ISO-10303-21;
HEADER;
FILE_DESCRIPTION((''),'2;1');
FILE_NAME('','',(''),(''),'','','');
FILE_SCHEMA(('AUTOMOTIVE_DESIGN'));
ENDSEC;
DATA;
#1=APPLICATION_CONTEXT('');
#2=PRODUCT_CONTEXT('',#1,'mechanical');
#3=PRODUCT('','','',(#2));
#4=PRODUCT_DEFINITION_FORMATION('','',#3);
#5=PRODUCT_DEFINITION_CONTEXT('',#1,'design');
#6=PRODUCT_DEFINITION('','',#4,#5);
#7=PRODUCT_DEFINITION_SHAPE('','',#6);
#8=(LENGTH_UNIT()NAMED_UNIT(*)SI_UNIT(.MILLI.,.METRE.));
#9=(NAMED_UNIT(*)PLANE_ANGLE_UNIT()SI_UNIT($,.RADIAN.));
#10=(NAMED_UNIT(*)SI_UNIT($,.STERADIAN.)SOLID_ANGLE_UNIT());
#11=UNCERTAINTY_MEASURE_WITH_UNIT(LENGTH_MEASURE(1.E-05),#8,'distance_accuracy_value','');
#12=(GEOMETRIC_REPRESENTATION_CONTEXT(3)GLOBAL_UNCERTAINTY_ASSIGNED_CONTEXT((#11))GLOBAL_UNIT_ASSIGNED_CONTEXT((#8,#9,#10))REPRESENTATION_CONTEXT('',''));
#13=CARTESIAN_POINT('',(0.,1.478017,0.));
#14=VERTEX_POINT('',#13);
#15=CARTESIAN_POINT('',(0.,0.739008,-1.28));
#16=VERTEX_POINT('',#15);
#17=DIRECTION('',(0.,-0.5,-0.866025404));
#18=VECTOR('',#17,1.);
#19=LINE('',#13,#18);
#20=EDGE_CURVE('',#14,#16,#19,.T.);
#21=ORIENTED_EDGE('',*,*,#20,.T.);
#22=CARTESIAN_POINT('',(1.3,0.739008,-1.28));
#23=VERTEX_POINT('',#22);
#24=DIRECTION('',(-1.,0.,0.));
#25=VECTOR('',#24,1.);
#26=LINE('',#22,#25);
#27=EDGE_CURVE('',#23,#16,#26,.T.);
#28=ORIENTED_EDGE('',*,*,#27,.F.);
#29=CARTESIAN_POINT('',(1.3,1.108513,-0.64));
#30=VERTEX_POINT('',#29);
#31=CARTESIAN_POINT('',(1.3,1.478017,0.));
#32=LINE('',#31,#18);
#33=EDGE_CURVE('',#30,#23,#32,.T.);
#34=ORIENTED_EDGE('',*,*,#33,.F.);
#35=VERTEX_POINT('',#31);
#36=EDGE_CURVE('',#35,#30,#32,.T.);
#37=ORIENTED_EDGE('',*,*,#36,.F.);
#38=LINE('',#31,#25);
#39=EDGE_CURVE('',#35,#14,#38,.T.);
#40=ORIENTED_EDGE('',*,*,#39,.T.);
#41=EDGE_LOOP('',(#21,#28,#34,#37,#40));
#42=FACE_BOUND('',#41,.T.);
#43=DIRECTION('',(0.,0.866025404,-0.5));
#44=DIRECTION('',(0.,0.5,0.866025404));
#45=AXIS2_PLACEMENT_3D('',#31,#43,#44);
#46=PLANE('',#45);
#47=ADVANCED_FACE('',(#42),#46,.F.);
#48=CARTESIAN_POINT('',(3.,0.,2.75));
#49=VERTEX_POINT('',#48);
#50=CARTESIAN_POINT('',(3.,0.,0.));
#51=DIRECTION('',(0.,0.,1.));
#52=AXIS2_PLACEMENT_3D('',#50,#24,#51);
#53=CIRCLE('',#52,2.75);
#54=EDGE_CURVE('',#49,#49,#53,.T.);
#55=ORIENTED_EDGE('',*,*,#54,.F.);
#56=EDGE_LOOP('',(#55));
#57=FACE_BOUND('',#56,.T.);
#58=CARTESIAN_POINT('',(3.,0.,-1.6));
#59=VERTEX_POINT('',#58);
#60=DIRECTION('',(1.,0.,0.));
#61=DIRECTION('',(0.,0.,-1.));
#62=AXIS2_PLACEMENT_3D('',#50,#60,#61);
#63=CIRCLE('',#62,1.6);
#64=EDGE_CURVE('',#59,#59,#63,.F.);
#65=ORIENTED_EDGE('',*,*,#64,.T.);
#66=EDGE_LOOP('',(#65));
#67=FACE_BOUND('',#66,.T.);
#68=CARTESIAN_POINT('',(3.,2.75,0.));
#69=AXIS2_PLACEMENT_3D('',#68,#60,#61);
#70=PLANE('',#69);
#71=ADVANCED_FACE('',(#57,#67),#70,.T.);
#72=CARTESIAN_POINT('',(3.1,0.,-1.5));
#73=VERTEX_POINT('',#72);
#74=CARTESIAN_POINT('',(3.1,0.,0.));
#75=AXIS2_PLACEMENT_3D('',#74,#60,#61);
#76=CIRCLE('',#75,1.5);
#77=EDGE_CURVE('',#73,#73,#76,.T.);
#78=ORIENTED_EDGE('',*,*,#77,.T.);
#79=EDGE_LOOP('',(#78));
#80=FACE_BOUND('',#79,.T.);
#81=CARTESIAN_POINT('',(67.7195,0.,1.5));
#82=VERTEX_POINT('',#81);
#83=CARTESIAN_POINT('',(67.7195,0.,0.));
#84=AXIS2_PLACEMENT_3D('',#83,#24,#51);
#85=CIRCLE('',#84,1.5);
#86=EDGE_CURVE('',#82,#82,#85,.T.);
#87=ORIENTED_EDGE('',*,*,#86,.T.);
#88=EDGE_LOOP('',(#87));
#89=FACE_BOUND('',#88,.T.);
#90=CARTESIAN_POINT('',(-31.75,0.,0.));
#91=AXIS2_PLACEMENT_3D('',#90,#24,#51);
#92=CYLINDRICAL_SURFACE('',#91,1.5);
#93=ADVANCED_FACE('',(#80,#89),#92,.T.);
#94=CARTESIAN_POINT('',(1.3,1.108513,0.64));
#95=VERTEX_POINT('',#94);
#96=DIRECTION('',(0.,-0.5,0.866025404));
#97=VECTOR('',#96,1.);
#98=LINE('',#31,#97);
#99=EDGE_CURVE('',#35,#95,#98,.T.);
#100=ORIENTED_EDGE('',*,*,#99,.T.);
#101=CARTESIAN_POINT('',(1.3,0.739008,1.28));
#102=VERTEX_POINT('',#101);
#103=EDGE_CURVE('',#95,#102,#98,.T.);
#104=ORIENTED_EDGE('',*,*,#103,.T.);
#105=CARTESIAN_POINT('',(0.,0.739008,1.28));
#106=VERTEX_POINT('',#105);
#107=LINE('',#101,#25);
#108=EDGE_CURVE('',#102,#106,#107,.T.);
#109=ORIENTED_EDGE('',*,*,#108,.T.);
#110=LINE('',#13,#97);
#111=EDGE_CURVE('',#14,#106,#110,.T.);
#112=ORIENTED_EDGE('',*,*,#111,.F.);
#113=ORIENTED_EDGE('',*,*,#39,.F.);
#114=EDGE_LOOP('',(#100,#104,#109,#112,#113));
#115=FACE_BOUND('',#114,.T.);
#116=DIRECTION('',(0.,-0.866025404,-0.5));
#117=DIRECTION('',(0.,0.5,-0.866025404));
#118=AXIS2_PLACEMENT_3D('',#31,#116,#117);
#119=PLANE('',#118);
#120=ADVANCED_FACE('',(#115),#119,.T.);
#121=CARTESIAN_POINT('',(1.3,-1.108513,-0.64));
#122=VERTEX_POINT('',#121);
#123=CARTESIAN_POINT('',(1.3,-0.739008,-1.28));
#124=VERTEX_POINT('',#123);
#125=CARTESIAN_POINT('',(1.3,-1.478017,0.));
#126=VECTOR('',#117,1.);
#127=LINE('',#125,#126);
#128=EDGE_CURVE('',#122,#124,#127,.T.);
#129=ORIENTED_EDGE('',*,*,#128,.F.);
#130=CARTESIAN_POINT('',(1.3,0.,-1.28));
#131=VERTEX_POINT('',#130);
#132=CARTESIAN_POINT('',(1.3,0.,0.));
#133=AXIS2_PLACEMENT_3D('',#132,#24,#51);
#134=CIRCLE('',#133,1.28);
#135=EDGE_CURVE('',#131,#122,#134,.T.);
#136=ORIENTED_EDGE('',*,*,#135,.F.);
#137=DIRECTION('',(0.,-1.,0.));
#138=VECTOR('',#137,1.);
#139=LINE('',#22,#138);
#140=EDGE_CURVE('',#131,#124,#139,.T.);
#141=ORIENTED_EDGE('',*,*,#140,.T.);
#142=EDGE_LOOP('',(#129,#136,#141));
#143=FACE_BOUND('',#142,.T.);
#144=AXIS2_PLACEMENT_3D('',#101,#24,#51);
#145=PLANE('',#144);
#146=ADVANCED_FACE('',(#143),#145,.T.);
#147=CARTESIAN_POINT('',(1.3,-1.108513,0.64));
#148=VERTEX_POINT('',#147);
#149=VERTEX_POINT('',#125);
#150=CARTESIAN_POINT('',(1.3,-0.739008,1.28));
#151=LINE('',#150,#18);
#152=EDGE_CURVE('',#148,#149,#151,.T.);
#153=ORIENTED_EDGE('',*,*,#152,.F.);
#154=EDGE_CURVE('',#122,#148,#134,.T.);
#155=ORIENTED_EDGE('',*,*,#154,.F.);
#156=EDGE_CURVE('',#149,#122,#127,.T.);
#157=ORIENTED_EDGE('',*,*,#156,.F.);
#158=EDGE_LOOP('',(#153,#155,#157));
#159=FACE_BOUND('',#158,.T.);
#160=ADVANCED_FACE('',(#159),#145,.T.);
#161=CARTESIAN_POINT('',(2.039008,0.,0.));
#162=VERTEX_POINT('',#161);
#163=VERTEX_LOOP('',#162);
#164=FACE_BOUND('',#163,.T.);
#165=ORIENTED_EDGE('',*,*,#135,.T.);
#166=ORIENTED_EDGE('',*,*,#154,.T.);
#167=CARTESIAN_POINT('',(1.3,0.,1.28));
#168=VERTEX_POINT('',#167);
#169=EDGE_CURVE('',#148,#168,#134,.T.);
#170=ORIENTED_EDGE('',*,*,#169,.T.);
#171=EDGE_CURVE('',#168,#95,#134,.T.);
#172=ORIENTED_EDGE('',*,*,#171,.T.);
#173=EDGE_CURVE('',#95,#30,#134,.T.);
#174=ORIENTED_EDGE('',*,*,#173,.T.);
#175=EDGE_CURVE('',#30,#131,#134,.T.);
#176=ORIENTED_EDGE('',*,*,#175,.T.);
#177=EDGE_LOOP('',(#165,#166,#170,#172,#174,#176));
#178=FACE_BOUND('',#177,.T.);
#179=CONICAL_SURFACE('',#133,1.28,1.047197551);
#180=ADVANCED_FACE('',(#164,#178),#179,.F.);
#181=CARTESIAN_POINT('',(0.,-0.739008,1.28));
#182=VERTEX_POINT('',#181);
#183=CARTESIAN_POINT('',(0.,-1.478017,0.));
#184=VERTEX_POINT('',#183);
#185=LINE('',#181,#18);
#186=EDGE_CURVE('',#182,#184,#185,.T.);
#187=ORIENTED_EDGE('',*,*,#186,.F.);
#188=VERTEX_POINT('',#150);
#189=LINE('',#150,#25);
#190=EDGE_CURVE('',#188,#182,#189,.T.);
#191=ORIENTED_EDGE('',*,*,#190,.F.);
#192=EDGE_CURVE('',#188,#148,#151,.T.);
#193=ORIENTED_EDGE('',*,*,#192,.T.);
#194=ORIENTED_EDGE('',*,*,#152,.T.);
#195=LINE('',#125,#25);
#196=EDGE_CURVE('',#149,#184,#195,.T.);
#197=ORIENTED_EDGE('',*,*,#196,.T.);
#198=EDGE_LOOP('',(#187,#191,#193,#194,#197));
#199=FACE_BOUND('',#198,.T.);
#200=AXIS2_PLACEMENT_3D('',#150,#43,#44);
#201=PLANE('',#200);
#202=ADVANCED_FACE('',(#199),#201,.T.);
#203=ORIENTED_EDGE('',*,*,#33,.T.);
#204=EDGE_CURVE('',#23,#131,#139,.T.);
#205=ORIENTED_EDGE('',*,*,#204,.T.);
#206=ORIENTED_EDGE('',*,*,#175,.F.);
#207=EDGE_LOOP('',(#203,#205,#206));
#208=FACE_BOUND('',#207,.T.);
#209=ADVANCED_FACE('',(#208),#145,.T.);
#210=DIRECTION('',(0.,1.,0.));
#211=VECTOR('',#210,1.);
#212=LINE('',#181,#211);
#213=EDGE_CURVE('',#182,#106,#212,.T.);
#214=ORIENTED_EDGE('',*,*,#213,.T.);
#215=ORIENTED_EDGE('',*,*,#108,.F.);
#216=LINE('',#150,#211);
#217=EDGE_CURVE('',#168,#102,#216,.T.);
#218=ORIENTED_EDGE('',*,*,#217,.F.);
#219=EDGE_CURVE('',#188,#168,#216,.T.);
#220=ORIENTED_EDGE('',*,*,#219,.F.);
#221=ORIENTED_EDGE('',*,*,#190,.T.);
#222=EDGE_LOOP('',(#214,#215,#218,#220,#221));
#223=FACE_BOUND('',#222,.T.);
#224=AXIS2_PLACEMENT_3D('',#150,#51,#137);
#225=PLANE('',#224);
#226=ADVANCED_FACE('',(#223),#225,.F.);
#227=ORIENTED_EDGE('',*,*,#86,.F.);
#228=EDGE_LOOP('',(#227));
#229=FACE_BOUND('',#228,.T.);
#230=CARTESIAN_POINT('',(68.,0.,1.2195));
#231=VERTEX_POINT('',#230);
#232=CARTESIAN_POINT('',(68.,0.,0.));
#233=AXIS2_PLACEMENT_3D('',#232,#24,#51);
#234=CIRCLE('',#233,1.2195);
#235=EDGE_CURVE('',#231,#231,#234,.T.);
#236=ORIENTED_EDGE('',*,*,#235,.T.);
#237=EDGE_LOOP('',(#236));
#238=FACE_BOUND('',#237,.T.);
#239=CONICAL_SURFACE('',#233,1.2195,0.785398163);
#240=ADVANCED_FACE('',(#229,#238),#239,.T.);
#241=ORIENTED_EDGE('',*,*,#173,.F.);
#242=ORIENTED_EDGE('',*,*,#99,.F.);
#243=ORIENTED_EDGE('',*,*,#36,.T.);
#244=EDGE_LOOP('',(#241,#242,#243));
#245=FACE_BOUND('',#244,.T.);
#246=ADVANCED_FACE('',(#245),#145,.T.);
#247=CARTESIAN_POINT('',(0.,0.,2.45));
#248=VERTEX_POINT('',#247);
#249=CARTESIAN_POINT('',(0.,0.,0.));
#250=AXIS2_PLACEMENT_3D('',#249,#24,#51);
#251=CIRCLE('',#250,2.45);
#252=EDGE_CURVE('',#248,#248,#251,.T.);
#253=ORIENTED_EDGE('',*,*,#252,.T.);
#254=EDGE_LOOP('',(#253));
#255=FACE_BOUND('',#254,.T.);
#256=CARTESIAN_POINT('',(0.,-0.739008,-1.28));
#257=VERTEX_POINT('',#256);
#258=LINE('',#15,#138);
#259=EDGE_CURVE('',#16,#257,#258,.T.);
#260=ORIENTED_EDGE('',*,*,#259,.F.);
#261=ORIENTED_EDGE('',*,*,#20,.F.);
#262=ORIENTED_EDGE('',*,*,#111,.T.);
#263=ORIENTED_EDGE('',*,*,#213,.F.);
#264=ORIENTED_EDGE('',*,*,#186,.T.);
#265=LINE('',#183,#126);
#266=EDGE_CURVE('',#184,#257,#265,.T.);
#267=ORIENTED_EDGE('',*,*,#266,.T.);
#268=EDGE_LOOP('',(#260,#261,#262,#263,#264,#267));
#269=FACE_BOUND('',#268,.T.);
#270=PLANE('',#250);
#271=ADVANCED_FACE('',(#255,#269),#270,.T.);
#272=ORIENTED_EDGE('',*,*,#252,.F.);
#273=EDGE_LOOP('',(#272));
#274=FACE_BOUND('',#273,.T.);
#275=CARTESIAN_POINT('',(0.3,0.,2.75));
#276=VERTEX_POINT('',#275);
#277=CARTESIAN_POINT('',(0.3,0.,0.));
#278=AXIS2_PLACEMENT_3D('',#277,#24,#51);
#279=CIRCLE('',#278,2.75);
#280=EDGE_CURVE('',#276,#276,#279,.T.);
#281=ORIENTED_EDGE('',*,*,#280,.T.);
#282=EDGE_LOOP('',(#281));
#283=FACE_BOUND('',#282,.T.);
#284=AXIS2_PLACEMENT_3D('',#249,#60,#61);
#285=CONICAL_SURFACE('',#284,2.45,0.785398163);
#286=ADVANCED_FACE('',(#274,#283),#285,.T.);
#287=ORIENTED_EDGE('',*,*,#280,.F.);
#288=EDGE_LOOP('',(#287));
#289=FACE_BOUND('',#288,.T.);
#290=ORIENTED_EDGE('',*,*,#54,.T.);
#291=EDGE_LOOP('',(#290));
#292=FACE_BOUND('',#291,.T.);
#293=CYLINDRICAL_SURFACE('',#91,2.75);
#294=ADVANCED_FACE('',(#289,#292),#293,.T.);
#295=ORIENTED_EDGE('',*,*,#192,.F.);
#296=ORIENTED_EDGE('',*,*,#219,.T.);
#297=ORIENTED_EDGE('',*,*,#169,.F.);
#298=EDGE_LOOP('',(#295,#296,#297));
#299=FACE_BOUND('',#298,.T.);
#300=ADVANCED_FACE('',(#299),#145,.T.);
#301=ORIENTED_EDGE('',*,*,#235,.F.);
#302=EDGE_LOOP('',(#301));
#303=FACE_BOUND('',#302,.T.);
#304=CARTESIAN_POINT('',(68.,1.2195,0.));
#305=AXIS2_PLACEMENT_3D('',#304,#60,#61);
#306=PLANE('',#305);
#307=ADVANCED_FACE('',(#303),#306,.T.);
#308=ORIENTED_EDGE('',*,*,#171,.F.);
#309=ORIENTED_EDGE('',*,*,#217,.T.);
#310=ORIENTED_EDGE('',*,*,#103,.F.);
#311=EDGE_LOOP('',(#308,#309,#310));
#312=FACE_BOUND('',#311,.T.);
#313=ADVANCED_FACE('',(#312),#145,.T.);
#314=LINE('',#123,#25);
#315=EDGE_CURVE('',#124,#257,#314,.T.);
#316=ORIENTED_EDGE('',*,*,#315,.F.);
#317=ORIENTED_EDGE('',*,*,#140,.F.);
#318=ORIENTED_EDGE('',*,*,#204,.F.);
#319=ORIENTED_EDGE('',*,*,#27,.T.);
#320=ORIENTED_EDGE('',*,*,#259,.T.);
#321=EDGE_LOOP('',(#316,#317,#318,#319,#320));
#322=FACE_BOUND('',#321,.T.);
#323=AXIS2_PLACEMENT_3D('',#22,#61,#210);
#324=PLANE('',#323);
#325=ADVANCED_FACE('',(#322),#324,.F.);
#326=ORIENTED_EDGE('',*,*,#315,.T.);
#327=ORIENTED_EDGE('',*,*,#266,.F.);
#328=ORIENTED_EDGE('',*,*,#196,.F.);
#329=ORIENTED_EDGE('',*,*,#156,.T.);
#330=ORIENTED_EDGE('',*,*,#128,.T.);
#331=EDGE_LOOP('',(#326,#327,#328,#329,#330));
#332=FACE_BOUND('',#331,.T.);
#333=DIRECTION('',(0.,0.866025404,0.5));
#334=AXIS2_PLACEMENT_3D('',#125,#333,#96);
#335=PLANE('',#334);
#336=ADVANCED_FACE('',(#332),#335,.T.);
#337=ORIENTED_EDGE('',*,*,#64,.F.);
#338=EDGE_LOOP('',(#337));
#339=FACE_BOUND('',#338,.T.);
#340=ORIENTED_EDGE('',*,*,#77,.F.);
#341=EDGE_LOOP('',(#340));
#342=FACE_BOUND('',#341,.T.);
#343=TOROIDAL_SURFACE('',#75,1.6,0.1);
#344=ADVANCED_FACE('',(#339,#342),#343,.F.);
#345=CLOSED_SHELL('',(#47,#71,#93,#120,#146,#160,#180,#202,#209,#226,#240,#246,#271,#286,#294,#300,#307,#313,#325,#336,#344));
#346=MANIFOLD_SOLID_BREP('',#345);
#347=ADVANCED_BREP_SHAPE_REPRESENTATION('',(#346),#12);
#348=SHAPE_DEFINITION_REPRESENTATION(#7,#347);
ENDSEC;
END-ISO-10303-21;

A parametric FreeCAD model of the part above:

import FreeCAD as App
import Part
import Sketcher
from FreeCAD import Vector
Q = App.Units.Quantity


def edges_at(feature, points):
    """Names of the edges that pass closest to the given points."""
    edges = feature.Shape.Edges
    near = lambda p: min(range(len(edges)), key=lambda i: edges[i].distToShape(Part.Vertex(*p))[0])
    return sorted({f"Edge{near(p) + 1}" for p in points})

doc = App.newDocument("Part")
body = doc.addObject("PartDesign::Body", "Body")

sketch1 = body.newObject("Sketcher::SketchObject", "Sketch")
sketch1.AttachmentSupport = (doc.getObject("XY_Plane"), [""])
sketch1.MapMode = "FlatFace"
sketch1.addGeometry([
    Part.LineSegment(Vector(0, 2.45, 0), Vector(0, 0, 0)),
    Part.LineSegment(Vector(0, 0, 0), Vector(68, 0, 0)),
    Part.LineSegment(Vector(68, 0, 0), Vector(68, 1.22, 0)),
    Part.LineSegment(Vector(68, 1.22, 0), Vector(67.72, 1.5, 0)),
    Part.LineSegment(Vector(67.72, 1.5, 0), Vector(3, 1.5, 0)),
    Part.LineSegment(Vector(3, 1.5, 0), Vector(3, 2.75, 0)),
    Part.LineSegment(Vector(3, 2.75, 0), Vector(0.3, 2.75, 0)),
    Part.LineSegment(Vector(0.3, 2.75, 0), Vector(0, 2.45, 0)),
], False)
sketch1.addConstraint([
    Sketcher.Constraint("Coincident", 0, 2, 1, 1),
    Sketcher.Constraint("Coincident", 1, 2, 2, 1),
    Sketcher.Constraint("Coincident", 2, 2, 3, 1),
    Sketcher.Constraint("Coincident", 3, 2, 4, 1),
    Sketcher.Constraint("Coincident", 4, 2, 5, 1),
    Sketcher.Constraint("Coincident", 5, 2, 6, 1),
    Sketcher.Constraint("Coincident", 6, 2, 7, 1),
    Sketcher.Constraint("Coincident", 7, 2, 0, 1),
    Sketcher.Constraint("Vertical", 0),
    Sketcher.Constraint("Horizontal", 1),
    Sketcher.Constraint("Vertical", 2),
    Sketcher.Constraint("Horizontal", 4),
    Sketcher.Constraint("Vertical", 5),
    Sketcher.Constraint("Horizontal", 6),
    Sketcher.Constraint("Coincident", 0, 2, -1, 1),
    Sketcher.Constraint("Perpendicular", 3, 7),
    Sketcher.Constraint("DistanceX", 1, 1, 1, 2, Q("68 mm")),
    Sketcher.Constraint("Angle", 3, Q("135 deg")),
    Sketcher.Constraint("DistanceX", 6, 2, 6, 1, Q("2.7 mm")),
    Sketcher.Constraint("DistanceX", -1, 1, 4, 2, Q("3 mm")),
    Sketcher.Constraint("DistanceY", 0, 2, 0, 1, Q("2.45 mm")),
    Sketcher.Constraint("DistanceY", 5, 1, 5, 2, Q("1.25 mm")),
    Sketcher.Constraint("DistanceX", 4, 2, 4, 1, Q("64.7195 mm")),
])
revolution = body.newObject("PartDesign::Revolution", "Revolution")
revolution.Profile = sketch1
revolution.ReferenceAxis = (sketch1, ["H_Axis"])
revolution.Angle = 360
doc.recompute()

fillet = body.newObject("PartDesign::Fillet", "Fillet")
fillet.Base = (revolution, edges_at(revolution, [(3, 0, -1.5)]))
fillet.Radius = 0.1

sketch2 = body.newObject("Sketcher::SketchObject", "Sketch001")
sketch2.AttachmentSupport = (doc.getObject("XY_Plane"), [""])
sketch2.MapMode = "FlatFace"
sketch2.addGeometry([
    Part.LineSegment(Vector(1.3, 1.3, 0), Vector(0, 1.3, 0)),
    Part.LineSegment(Vector(0, 1.3, 0), Vector(0, 0, 0)),
    Part.LineSegment(Vector(0, 0, 0), Vector(2, 0, 0)),
    Part.LineSegment(Vector(2, 0, 0), Vector(1.3, 1.3, 0)),
], False)
sketch2.addConstraint([
    Sketcher.Constraint("Coincident", 0, 2, 1, 1),
    Sketcher.Constraint("Coincident", 1, 2, 2, 1),
    Sketcher.Constraint("Coincident", 2, 2, 3, 1),
    Sketcher.Constraint("Coincident", 3, 2, 0, 1),
    Sketcher.Constraint("Horizontal", 0),
    Sketcher.Constraint("Vertical", 1),
    Sketcher.Constraint("Horizontal", 2),
    Sketcher.Constraint("Coincident", 1, 2, -1, 1),
    Sketcher.Constraint("Angle", 3, Q("120 deg")),
    Sketcher.Constraint("DistanceX", 0, 2, 0, 1, Q("1.3 mm")),
    Sketcher.Constraint("DistanceY", 1, 2, 1, 1, Q("1.28 mm")),
])
groove = body.newObject("PartDesign::Groove", "Groove")
groove.Profile = sketch2
groove.ReferenceAxis = (sketch2, ["H_Axis"])
groove.Angle = 360

sketch3 = body.newObject("Sketcher::SketchObject", "Sketch002")
sketch3.AttachmentSupport = (doc.getObject("YZ_Plane"), [""])
sketch3.MapMode = "FlatFace"
sketch3.addGeometry([
    Part.LineSegment(Vector(1.5, 0, 0), Vector(0.7, -1.3, 0)),
    Part.LineSegment(Vector(0.7, -1.3, 0), Vector(-0.7, -1.3, 0)),
    Part.LineSegment(Vector(-0.7, -1.3, 0), Vector(-1.5, 0, 0)),
    Part.LineSegment(Vector(-1.5, 0, 0), Vector(-0.7, 1.3, 0)),
    Part.LineSegment(Vector(-0.7, 1.3, 0), Vector(0.7, 1.3, 0)),
    Part.LineSegment(Vector(0.7, 1.3, 0), Vector(1.5, 0, 0)),
], False)
sketch3.addConstraint([
    Sketcher.Constraint("Coincident", 0, 2, 1, 1),
    Sketcher.Constraint("Coincident", 1, 2, 2, 1),
    Sketcher.Constraint("Coincident", 2, 2, 3, 1),
    Sketcher.Constraint("Coincident", 3, 2, 4, 1),
    Sketcher.Constraint("Coincident", 4, 2, 5, 1),
    Sketcher.Constraint("Coincident", 5, 2, 0, 1),
    Sketcher.Constraint("Horizontal", 1),
    Sketcher.Constraint("Horizontal", 4),
    Sketcher.Constraint("Symmetric", 0, 2, 3, 2, -1, 1),
    Sketcher.Constraint("Symmetric", 2, 2, 5, 2, -1, 1),
    Sketcher.Constraint("PointOnObject", 2, 2, -1),
    Sketcher.Constraint("Parallel", 2, 5),
    Sketcher.Constraint("Vertical", 1, 2, 3, 2),
    Sketcher.Constraint("Angle", 0, Q("-120 deg")),
    Sketcher.Constraint("DistanceY", 0, 2, -1, 1, Q("1.28 mm")),
    Sketcher.Constraint("DistanceX", 1, 2, 1, 1, Q("1.478017 mm")),
])
pocket1 = body.newObject("PartDesign::Pocket", "Pocket")
pocket1.Profile = sketch3
pocket1.Length = 1.3
pocket1.Reversed = True

doc.recompute()
